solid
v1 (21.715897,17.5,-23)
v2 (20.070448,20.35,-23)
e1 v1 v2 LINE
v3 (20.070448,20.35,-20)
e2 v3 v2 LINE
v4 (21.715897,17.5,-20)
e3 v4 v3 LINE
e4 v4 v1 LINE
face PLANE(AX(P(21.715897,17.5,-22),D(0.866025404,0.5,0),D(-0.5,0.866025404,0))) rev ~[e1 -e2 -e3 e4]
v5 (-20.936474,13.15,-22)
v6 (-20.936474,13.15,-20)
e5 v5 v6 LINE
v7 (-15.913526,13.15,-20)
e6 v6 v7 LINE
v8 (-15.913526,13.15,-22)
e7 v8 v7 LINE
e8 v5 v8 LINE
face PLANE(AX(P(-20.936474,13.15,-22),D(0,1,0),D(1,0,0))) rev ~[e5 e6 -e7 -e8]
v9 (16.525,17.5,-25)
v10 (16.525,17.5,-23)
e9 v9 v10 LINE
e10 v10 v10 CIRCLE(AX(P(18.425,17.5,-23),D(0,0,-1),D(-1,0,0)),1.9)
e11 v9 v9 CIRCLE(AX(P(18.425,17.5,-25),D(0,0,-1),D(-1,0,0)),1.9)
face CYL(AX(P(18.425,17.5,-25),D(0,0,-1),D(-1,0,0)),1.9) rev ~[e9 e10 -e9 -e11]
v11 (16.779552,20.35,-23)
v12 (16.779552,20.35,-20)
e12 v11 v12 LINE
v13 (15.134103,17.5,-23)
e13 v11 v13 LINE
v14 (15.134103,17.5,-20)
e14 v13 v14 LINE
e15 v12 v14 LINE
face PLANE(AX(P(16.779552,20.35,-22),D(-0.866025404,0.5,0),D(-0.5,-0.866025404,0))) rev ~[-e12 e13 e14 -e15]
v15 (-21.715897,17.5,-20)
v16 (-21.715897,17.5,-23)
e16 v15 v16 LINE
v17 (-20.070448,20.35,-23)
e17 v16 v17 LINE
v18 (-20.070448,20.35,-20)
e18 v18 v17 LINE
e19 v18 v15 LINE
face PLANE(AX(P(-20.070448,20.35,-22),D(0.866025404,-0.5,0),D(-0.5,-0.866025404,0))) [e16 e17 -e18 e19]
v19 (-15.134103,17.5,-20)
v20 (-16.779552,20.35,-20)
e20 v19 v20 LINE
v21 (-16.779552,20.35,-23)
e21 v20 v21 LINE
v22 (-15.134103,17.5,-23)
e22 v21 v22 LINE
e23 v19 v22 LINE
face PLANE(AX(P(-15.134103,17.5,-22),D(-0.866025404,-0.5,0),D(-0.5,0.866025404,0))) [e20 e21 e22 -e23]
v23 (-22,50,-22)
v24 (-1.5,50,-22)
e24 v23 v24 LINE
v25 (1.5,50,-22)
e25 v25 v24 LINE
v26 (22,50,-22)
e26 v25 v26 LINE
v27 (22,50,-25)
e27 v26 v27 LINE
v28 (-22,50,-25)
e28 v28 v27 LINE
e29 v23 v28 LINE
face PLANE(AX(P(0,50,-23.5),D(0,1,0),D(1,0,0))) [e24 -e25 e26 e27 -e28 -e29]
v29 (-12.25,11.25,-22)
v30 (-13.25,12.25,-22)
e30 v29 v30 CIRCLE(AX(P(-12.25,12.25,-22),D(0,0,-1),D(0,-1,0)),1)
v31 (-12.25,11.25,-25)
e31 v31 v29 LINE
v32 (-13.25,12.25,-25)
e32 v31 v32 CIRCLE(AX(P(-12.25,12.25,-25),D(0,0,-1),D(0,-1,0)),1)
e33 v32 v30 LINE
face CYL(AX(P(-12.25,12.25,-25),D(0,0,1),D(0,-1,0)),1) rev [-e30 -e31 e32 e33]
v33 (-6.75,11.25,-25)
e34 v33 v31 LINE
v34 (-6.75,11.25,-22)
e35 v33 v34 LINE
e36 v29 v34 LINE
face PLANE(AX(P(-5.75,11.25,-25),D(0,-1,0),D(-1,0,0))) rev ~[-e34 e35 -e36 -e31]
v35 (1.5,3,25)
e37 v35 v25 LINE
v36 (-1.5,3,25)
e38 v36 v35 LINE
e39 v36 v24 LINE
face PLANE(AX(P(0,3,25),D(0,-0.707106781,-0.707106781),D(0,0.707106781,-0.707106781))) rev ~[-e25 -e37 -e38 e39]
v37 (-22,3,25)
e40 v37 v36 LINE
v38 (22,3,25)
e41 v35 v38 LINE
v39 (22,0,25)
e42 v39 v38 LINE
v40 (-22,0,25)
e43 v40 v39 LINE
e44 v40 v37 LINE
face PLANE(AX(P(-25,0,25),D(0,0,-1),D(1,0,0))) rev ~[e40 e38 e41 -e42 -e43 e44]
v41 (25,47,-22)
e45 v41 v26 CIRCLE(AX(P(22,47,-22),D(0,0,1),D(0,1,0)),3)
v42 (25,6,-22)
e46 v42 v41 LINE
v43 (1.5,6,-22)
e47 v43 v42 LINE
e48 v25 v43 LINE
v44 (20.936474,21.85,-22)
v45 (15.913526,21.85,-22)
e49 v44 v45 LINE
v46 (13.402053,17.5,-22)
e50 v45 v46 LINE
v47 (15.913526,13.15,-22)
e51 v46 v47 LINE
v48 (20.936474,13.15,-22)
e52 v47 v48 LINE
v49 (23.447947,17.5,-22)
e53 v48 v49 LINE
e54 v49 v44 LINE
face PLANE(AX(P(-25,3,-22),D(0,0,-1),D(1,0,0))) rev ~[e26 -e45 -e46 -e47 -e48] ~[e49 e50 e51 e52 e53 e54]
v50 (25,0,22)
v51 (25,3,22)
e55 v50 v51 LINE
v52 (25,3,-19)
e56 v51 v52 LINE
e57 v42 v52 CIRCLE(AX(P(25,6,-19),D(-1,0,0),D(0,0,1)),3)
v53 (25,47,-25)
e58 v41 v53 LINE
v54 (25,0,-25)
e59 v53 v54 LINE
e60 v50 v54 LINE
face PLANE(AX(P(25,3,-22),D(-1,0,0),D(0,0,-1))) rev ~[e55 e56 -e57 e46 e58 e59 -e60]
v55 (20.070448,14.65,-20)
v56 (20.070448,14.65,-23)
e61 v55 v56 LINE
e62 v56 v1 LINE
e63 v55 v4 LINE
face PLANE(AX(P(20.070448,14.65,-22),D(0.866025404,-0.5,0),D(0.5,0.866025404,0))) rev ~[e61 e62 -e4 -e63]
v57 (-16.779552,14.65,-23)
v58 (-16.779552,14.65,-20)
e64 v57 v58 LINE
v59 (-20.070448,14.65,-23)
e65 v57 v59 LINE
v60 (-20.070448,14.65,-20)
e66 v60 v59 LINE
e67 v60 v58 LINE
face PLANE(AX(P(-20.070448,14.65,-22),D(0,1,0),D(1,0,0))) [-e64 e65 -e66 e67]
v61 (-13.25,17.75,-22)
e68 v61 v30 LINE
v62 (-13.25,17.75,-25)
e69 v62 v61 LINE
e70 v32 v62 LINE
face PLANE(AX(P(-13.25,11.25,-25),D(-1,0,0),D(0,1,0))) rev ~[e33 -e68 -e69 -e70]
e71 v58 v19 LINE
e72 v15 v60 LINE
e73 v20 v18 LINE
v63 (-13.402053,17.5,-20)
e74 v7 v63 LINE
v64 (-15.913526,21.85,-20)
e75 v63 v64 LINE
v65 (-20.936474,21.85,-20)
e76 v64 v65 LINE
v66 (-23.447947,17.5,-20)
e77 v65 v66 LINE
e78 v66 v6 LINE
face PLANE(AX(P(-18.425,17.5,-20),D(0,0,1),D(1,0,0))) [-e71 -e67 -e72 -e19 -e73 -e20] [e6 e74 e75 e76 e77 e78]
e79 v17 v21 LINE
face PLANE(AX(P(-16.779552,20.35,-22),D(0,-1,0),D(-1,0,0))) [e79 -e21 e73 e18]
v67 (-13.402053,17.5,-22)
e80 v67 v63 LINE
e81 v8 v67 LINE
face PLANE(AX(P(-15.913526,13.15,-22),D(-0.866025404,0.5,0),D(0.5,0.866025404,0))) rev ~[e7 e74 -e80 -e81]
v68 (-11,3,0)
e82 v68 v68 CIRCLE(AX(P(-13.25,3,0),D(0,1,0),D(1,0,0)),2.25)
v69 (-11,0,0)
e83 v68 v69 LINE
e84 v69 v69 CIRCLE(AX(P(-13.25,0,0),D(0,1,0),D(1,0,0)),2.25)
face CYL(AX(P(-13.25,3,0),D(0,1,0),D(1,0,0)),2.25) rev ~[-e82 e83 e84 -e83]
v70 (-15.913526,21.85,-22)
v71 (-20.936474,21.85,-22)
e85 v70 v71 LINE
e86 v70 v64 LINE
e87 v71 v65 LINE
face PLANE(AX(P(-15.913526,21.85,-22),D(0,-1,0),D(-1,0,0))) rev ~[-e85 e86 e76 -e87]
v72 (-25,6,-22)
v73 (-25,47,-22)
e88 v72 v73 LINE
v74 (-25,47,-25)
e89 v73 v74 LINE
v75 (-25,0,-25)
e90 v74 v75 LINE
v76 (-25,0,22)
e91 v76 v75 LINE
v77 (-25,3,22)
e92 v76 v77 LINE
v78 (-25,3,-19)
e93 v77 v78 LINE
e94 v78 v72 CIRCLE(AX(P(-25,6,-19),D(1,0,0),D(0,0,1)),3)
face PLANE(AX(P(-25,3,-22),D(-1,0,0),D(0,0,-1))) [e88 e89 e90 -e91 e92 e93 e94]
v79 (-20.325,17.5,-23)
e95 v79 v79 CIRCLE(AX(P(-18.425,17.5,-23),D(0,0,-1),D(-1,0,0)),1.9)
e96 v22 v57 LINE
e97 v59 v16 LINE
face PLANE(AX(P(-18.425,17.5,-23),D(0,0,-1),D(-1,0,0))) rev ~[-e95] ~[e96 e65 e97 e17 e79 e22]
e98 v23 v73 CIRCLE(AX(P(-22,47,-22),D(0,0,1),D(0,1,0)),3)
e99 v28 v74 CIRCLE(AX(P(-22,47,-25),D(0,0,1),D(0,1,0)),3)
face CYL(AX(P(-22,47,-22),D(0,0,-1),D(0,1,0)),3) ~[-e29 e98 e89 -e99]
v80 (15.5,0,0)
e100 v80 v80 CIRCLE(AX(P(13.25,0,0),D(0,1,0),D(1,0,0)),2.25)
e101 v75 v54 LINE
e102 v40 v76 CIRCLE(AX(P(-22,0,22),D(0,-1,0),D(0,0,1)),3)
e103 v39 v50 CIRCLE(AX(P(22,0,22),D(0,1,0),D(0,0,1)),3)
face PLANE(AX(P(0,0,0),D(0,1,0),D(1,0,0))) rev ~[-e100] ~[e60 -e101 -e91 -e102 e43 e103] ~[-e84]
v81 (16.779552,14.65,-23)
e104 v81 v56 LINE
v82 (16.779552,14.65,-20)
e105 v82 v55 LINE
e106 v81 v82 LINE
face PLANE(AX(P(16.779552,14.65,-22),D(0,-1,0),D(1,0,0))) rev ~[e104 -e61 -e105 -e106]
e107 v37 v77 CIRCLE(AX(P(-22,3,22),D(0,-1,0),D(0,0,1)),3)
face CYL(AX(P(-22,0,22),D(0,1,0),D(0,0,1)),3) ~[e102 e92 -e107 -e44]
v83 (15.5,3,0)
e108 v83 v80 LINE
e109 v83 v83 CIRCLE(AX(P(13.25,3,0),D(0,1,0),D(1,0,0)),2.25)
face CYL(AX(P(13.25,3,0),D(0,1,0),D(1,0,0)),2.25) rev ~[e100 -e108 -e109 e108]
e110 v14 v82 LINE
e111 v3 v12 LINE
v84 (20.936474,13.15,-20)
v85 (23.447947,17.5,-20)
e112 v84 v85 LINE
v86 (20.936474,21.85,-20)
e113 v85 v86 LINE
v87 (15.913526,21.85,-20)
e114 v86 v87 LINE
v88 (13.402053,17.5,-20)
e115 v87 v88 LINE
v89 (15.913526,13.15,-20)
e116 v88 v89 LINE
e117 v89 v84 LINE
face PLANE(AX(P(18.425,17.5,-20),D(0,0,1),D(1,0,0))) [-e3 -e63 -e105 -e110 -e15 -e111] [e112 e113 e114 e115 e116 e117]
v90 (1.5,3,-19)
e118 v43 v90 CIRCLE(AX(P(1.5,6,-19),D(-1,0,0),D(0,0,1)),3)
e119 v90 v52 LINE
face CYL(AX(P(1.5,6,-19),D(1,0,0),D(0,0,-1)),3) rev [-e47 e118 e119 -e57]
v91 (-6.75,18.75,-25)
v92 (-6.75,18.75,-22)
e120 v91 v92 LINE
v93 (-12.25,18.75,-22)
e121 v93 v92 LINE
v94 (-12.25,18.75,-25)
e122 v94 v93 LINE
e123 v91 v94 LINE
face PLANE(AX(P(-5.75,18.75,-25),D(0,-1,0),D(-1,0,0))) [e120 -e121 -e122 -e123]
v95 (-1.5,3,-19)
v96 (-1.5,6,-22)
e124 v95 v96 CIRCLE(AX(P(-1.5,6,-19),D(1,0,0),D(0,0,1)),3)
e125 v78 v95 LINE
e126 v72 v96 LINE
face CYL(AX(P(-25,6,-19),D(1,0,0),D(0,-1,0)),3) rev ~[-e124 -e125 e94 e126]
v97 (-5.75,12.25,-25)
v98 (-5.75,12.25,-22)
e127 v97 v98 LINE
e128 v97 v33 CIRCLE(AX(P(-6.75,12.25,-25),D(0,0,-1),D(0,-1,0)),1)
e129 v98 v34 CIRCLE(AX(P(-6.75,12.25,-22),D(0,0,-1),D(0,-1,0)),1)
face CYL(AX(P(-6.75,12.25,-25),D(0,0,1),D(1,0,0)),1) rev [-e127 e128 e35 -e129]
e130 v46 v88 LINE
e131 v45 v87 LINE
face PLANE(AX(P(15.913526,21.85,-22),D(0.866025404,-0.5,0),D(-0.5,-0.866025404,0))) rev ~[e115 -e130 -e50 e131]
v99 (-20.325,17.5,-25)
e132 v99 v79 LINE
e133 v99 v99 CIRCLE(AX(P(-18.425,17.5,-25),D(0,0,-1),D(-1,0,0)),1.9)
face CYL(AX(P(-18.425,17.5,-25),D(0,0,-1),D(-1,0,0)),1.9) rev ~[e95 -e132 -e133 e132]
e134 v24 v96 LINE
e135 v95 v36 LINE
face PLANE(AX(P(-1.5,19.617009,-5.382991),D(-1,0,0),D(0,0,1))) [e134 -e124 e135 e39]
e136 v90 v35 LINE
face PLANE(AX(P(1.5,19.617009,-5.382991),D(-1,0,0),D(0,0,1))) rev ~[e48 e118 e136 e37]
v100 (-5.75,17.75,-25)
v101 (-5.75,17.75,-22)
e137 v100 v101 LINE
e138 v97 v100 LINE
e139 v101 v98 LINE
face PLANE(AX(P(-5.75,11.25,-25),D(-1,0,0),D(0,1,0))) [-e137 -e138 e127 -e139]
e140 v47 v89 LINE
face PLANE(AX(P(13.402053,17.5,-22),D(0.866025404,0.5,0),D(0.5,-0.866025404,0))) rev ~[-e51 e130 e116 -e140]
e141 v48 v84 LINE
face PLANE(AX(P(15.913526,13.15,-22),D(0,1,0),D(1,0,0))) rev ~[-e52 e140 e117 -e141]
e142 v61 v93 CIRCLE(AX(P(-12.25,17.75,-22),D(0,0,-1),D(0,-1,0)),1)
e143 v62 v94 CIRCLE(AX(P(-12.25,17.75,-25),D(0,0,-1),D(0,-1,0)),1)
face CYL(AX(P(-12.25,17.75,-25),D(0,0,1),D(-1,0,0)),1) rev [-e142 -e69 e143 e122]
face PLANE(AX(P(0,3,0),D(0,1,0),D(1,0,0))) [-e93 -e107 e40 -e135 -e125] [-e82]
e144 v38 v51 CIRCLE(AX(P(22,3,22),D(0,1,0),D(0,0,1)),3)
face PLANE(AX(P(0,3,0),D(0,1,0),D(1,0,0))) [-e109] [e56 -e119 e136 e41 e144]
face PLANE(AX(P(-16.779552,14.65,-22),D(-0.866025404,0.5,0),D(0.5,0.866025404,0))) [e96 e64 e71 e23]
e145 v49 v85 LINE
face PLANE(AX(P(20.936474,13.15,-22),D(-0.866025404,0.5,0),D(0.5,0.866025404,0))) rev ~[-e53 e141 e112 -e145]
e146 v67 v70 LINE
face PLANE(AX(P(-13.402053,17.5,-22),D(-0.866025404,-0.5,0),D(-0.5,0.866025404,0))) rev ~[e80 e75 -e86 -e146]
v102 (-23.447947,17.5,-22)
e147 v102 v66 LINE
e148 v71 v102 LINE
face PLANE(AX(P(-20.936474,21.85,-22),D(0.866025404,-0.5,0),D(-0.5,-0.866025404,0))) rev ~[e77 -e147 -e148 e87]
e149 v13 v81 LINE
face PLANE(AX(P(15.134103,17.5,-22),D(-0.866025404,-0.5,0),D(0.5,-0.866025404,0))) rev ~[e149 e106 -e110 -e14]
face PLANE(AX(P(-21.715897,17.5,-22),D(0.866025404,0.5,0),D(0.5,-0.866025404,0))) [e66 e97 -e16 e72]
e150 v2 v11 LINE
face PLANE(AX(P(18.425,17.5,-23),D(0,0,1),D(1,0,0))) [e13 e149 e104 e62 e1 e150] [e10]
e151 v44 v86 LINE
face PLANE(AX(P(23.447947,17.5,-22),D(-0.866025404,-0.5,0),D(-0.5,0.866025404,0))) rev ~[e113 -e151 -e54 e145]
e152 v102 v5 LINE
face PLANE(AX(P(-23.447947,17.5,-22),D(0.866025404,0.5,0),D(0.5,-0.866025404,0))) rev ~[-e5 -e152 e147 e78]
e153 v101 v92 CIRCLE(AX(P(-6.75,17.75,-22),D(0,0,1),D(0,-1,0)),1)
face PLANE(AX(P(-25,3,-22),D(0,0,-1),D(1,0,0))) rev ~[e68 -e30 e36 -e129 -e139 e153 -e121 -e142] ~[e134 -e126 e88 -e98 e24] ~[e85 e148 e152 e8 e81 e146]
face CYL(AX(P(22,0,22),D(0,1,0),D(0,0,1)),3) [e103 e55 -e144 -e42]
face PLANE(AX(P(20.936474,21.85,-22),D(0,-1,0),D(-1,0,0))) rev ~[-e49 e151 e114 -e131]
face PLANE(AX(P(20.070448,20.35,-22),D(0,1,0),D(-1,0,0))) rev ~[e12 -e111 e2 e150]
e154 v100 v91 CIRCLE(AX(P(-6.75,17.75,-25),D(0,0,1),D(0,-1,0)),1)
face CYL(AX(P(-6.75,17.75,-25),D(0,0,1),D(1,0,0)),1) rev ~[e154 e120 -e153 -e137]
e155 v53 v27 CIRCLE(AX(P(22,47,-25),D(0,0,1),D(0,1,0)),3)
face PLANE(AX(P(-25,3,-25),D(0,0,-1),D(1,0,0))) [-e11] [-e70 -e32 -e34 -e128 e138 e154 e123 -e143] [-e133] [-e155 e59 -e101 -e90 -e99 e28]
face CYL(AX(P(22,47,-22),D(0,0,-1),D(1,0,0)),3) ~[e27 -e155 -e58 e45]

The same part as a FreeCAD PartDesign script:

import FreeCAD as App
import Part
import Sketcher
Q = App.Units.Quantity


def edges_at(feature, points):
    """Names of the edges that pass closest to the given points."""
    edges = feature.Shape.Edges
    near = lambda p: min(range(len(edges)), key=lambda i: edges[i].distToShape(Part.Vertex(*p))[0])
    return sorted({f"Edge{near(p) + 1}" for p in points})

doc = App.newDocument("Part")
body = doc.addObject("PartDesign::Body", "Body")

# Sketch on XZ plane
sketch1 = doc.addObject("Sketcher::SketchObject", "Sketch")
body.addObject(sketch1)
sketch1.AttachmentSupport = (doc.XZ_Plane, [""])
sketch1.MapMode = "FlatFace"
sketch1.addGeometry(Part.LineSegment(App.Vector(-25, -25, 0), App.Vector(-25, 25, 0)), False)
sketch1.addGeometry(Part.LineSegment(App.Vector(-25, 25, 0), App.Vector(25, 25, 0)), False)
sketch1.addGeometry(Part.LineSegment(App.Vector(25, 25, 0), App.Vector(25, -25, 0)), False)
sketch1.addGeometry(Part.LineSegment(App.Vector(25, -25, 0), App.Vector(-25, -25, 0)), False)
sketch1.addConstraint(Sketcher.Constraint("Coincident", 0, 2, 1, 1))
sketch1.addConstraint(Sketcher.Constraint("Coincident", 1, 2, 2, 1))
sketch1.addConstraint(Sketcher.Constraint("Coincident", 2, 2, 3, 1))
sketch1.addConstraint(Sketcher.Constraint("Coincident", 3, 2, 0, 1))
sketch1.addConstraint(Sketcher.Constraint("Vertical", 0))
sketch1.addConstraint(Sketcher.Constraint("Horizontal", 1))
sketch1.addConstraint(Sketcher.Constraint("Vertical", 2))
sketch1.addConstraint(Sketcher.Constraint("Horizontal", 3))
sketch1.addConstraint(Sketcher.Constraint("Symmetric", 0, 2, 2, 2, -1, 1))
sketch1.addConstraint(Sketcher.Constraint("Equal", 3, 0))
sketch1.addConstraint(Sketcher.Constraint("DistanceX", 1, 1, 1, 2, Q("50 mm")))
pad1 = doc.addObject("PartDesign::Pad", "Pad")
body.addObject(pad1)
pad1.Profile = sketch1
pad1.Length = 3
pad1.Reversed = True

# Sketch on XZ plane
sketch2 = doc.addObject("Sketcher::SketchObject", "Sketch001")
body.addObject(sketch2)
sketch2.AttachmentSupport = (doc.XZ_Plane, [""])
sketch2.MapMode = "FlatFace"
sketch2.AttachmentOffset = App.Placement(App.Vector(0, 0, -3), App.Rotation())
sketch2.addGeometry(Part.LineSegment(App.Vector(-25, -25, 0), App.Vector(-25, -22, 0)), False)
sketch2.addGeometry(Part.LineSegment(App.Vector(-25, -22, 0), App.Vector(25, -22, 0)), False)
sketch2.addGeometry(Part.LineSegment(App.Vector(25, -22, 0), App.Vector(25, -25, 0)), False)
sketch2.addGeometry(Part.LineSegment(App.Vector(25, -25, 0), App.Vector(-25, -25, 0)), False)
sketch2.addConstraint(Sketcher.Constraint("Coincident", 0, 2, 1, 1))
sketch2.addConstraint(Sketcher.Constraint("Coincident", 1, 2, 2, 1))
sketch2.addConstraint(Sketcher.Constraint("Coincident", 2, 2, 3, 1))
sketch2.addConstraint(Sketcher.Constraint("Coincident", 3, 2, 0, 1))
sketch2.addConstraint(Sketcher.Constraint("Vertical", 0))
sketch2.addConstraint(Sketcher.Constraint("Horizontal", 1))
sketch2.addConstraint(Sketcher.Constraint("Vertical", 2))
sketch2.addConstraint(Sketcher.Constraint("Horizontal", 3))
sketch2.addConstraint(Sketcher.Constraint("DistanceX", 1, 1, 1, 2, Q("50 mm")))
sketch2.addConstraint(Sketcher.Constraint("DistanceY", 0, 1, 0, 2, Q("3 mm")))
sketch2.addConstraint(Sketcher.Constraint("DistanceX", 0, 2, -1, 1, Q("25 mm")))
sketch2.addConstraint(Sketcher.Constraint("DistanceY", 0, 2, -1, 1, Q("22 mm")))
pad2 = doc.addObject("PartDesign::Pad", "Pad001")
body.addObject(pad2)
pad2.Profile = sketch2
pad2.Length = 47
pad2.Reversed = True

# Sketch on YZ plane
sketch3 = doc.addObject("Sketcher::SketchObject", "Sketch002")
body.addObject(sketch3)
sketch3.AttachmentSupport = (doc.YZ_Plane, [""])
sketch3.MapMode = "FlatFace"
sketch3.addGeometry(Part.LineSegment(App.Vector(50, -22, 0), App.Vector(3, 25, 0)), False)
sketch3.addGeometry(Part.LineSegment(App.Vector(3, 25, 0), App.Vector(3, -22, 0)), False)
sketch3.addGeometry(Part.LineSegment(App.Vector(3, -22, 0), App.Vector(50, -22, 0)), False)
sketch3.addConstraint(Sketcher.Constraint("Coincident", 0, 2, 1, 1))
sketch3.addConstraint(Sketcher.Constraint("Coincident", 1, 2, 2, 1))
sketch3.addConstraint(Sketcher.Constraint("Coincident", 2, 2, 0, 1))
sketch3.addConstraint(Sketcher.Constraint("Vertical", 1))
sketch3.addConstraint(Sketcher.Constraint("Horizontal", 2))
sketch3.addConstraint(Sketcher.Constraint("Equal", 2, 1))
sketch3.addConstraint(Sketcher.Constraint("DistanceX", 2, 1, 2, 2, Q("47 mm")))
sketch3.addConstraint(Sketcher.Constraint("DistanceX", -1, 1, 0, 2, Q("3 mm")))
sketch3.addConstraint(Sketcher.Constraint("DistanceY", -1, 1, 0, 2, Q("25 mm")))
pad3 = doc.addObject("PartDesign::Pad", "Pad002")
body.addObject(pad3)
pad3.Profile = sketch3
pad3.Length = 3
pad3.Midplane = True

# Sketch on XY plane
sketch4 = doc.addObject("Sketcher::SketchObject", "Sketch003")
body.addObject(sketch4)
sketch4.AttachmentSupport = (doc.XY_Plane, [""])
sketch4.MapMode = "FlatFace"
sketch4.AttachmentOffset = App.Placement(App.Vector(0, 0, -25), App.Rotation())
sketch4.addGeometry(Part.Circle(App.Vector(18.4, 17.5, 0), App.Vector(0, 0, 1), 1.9), False)
sketch4.addConstraint(Sketcher.Constraint("Diameter", 0, Q("3.8 mm")))
sketch4.addConstraint(Sketcher.Constraint("DistanceY", -1, 1, 0, 3, Q("17.5 mm")))
sketch4.addConstraint(Sketcher.Constraint("DistanceX", -1, 1, 0, 3, Q("18.425 mm")))
pocket1 = doc.addObject("PartDesign::Pocket", "Pocket")
body.addObject(pocket1)
pocket1.Profile = sketch4
pocket1.Type = "UpToFirst"
pocket1.Reversed = True

# Sketch on XY plane
sketch5 = doc.addObject("Sketcher::SketchObject", "Sketch004")
body.addObject(sketch5)
sketch5.AttachmentSupport = (doc.XY_Plane, [""])
sketch5.MapMode = "FlatFace"
sketch5.AttachmentOffset = App.Placement(App.Vector(0, 0, -25), App.Rotation())
sketch5.addGeometry(Part.Circle(App.Vector(-18.4, 17.5, 0), App.Vector(0, 0, 1), 1.9), False)
sketch5.addConstraint(Sketcher.Constraint("Diameter", 0, Q("3.8 mm")))
sketch5.addConstraint(Sketcher.Constraint("DistanceY", -1, 1, 0, 3, Q("17.5 mm")))
sketch5.addConstraint(Sketcher.Constraint("DistanceX", 0, 3, -1, 1, Q("18.425 mm")))
pocket2 = doc.addObject("PartDesign::Pocket", "Pocket001")
body.addObject(pocket2)
pocket2.Profile = sketch5
pocket2.Type = "UpToFirst"
pocket2.Reversed = True

# Sketch on XY plane
sketch6 = doc.addObject("Sketcher::SketchObject", "Sketch005")
body.addObject(sketch6)
sketch6.AttachmentSupport = (doc.XY_Plane, [""])
sketch6.MapMode = "FlatFace"
sketch6.AttachmentOffset = App.Placement(App.Vector(0, 0, -25), App.Rotation())
sketch6.addGeometry(Part.LineSegment(App.Vector(-6, 19, 0), App.Vector(-6, 11, 0)), False)
sketch6.addGeometry(Part.LineSegment(App.Vector(-6, 11, 0), App.Vector(-13, 11, 0)), False)
sketch6.addGeometry(Part.LineSegment(App.Vector(-13, 11, 0), App.Vector(-13, 19, 0)), False)
sketch6.addGeometry(Part.LineSegment(App.Vector(-13, 19, 0), App.Vector(-6, 19, 0)), False)
sketch6.addConstraint(Sketcher.Constraint("Coincident", 0, 2, 1, 1))
sketch6.addConstraint(Sketcher.Constraint("Coincident", 1, 2, 2, 1))
sketch6.addConstraint(Sketcher.Constraint("Coincident", 2, 2, 3, 1))
sketch6.addConstraint(Sketcher.Constraint("Coincident", 3, 2, 0, 1))
sketch6.addConstraint(Sketcher.Constraint("Vertical", 0))
sketch6.addConstraint(Sketcher.Constraint("Horizontal", 1))
sketch6.addConstraint(Sketcher.Constraint("Vertical", 2))
sketch6.addConstraint(Sketcher.Constraint("Horizontal", 3))
sketch6.addConstraint(Sketcher.Constraint("Equal", 3, 0))
sketch6.addConstraint(Sketcher.Constraint("DistanceX", 1, 2, 1, 1, Q("7.5 mm")))
sketch6.addConstraint(Sketcher.Constraint("DistanceX", 0, 2, -1, 1, Q("5.75 mm")))
sketch6.addConstraint(Sketcher.Constraint("DistanceY", -1, 1, 0, 2, Q("11.25 mm")))
pocket3 = doc.addObject("PartDesign::Pocket", "Pocket002")
body.addObject(pocket3)
pocket3.Profile = sketch6
pocket3.Type = "UpToFirst"
pocket3.Reversed = True
doc.recompute()

fillet = doc.addObject("PartDesign::Fillet", "Fillet")
body.addObject(fillet)
fillet.Base = (pocket3, edges_at(pocket3, [
    (-13.25, 18.75, -23.5),
    (-13.25, 11.25, -23.5),
    (-5.75, 11.25, -23.5),
    (-5.75, 18.75, -23.5),
]))
fillet.Radius = 1

# Sketch on XY plane
sketch7 = doc.addObject("Sketcher::SketchObject", "Sketch006")
body.addObject(sketch7)
sketch7.AttachmentSupport = (doc.XY_Plane, [""])
sketch7.MapMode = "FlatFace"
sketch7.AttachmentOffset = App.Placement(App.Vector(0, 0, -22), App.Rotation())
sketch7.addGeometry(Part.LineSegment(App.Vector(16.8, 14.7, 0), App.Vector(20.1, 14.7, 0)), False)
sketch7.addGeometry(Part.LineSegment(App.Vector(20.1, 14.7, 0), App.Vector(21.7, 17.5, 0)), False)
sketch7.addGeometry(Part.LineSegment(App.Vector(21.7, 17.5, 0), App.Vector(20.1, 20.4, 0)), False)
sketch7.addGeometry(Part.LineSegment(App.Vector(20.1, 20.4, 0), App.Vector(16.8, 20.4, 0)), False)
sketch7.addGeometry(Part.LineSegment(App.Vector(16.8, 20.4, 0), App.Vector(15.1, 17.5, 0)), False)
sketch7.addGeometry(Part.LineSegment(App.Vector(15.1, 17.5, 0), App.Vector(16.8, 14.7, 0)), False)
sketch7.addGeometry(Part.LineSegment(App.Vector(-21.7, 17.5, 0), App.Vector(-20.1, 14.7, 0)), False)
sketch7.addGeometry(Part.LineSegment(App.Vector(-20.1, 14.7, 0), App.Vector(-16.8, 14.7, 0)), False)
sketch7.addGeometry(Part.LineSegment(App.Vector(-16.8, 14.7, 0), App.Vector(-15.1, 17.5, 0)), False)
sketch7.addGeometry(Part.LineSegment(App.Vector(-15.1, 17.5, 0), App.Vector(-16.8, 20.4, 0)), False)
sketch7.addGeometry(Part.LineSegment(App.Vector(-16.8, 20.4, 0), App.Vector(-20.1, 20.4, 0)), False)
sketch7.addGeometry(Part.LineSegment(App.Vector(-20.1, 20.4, 0), App.Vector(-21.7, 17.5, 0)), False)
sketch7.addConstraint(Sketcher.Constraint("Coincident", 0, 2, 1, 1))
sketch7.addConstraint(Sketcher.Constraint("Coincident", 1, 2, 2, 1))
sketch7.addConstraint(Sketcher.Constraint("Coincident", 2, 2, 3, 1))
sketch7.addConstraint(Sketcher.Constraint("Coincident", 3, 2, 4, 1))
sketch7.addConstraint(Sketcher.Constraint("Coincident", 4, 2, 5, 1))
sketch7.addConstraint(Sketcher.Constraint("Coincident", 5, 2, 0, 1))
sketch7.addConstraint(Sketcher.Constraint("Coincident", 6, 2, 7, 1))
sketch7.addConstraint(Sketcher.Constraint("Coincident", 7, 2, 8, 1))
sketch7.addConstraint(Sketcher.Constraint("Coincident", 8, 2, 9, 1))
sketch7.addConstraint(Sketcher.Constraint("Coincident", 9, 2, 10, 1))
sketch7.addConstraint(Sketcher.Constraint("Coincident", 10, 2, 11, 1))
sketch7.addConstraint(Sketcher.Constraint("Coincident", 11, 2, 6, 1))
sketch7.addConstraint(Sketcher.Constraint("Horizontal", 0))
sketch7.addConstraint(Sketcher.Constraint("Horizontal", 3))
sketch7.addConstraint(Sketcher.Constraint("Horizontal", 7))
sketch7.addConstraint(Sketcher.Constraint("Horizontal", 10))
sketch7.addConstraint(Sketcher.Constraint("Symmetric", 0, 2, 6, 2, -2))
sketch7.addConstraint(Sketcher.Constraint("Symmetric", 4, 2, 8, 2, -2))
sketch7.addConstraint(Sketcher.Constraint("Symmetric", 3, 2, 9, 2, -2))
sketch7.addConstraint(Sketcher.Constraint("Symmetric", 1, 2, 11, 2, -2))
sketch7.addConstraint(Sketcher.Constraint("Parallel", 1, 4))
sketch7.addConstraint(Sketcher.Constraint("Parallel", 2, 5))
sketch7.addConstraint(Sketcher.Constraint("Parallel", 5, 6))
sketch7.addConstraint(Sketcher.Constraint("Parallel", 4, 8))
sketch7.addConstraint(Sketcher.Constraint("Parallel", 8, 11))
sketch7.addConstraint(Sketcher.Constraint("Horizontal", 1, 2, 4, 2))
sketch7.addConstraint(Sketcher.Constraint("Vertical", 0, 2, 2, 2))
sketch7.addConstraint(Sketcher.Constraint("Angle", 1, Q("60 deg")))
sketch7.addConstraint(Sketcher.Constraint("DistanceY", -1, 1, 1, 2, Q("17.5 mm")))
sketch7.addConstraint(Sketcher.Constraint("DistanceY", 0, 2, 2, 2, Q("5.7 mm")))
sketch7.addConstraint(Sketcher.Constraint("DistanceX", 6, 2, 5, 2, Q("36.85 mm")))
sketch7.addConstraint(Sketcher.Constraint("DistanceX", 0, 1, 0, 2, Q("3.290897 mm")))
pocket4 = doc.addObject("PartDesign::Pocket", "Pocket003")
body.addObject(pocket4)
pocket4.Profile = sketch7
pocket4.Length = 1

# Sketch on XY plane
sketch8 = doc.addObject("Sketcher::SketchObject", "Sketch007")
body.addObject(sketch8)
sketch8.AttachmentSupport = (doc.XY_Plane, [""])
sketch8.MapMode = "FlatFace"
sketch8.AttachmentOffset = App.Placement(App.Vector(0, 0, -22), App.Rotation())
sketch8.addGeometry(Part.LineSegment(App.Vector(-15.9, 13.2, 0), App.Vector(-13.4, 17.5, 0)), False)
sketch8.addGeometry(Part.LineSegment(App.Vector(-13.4, 17.5, 0), App.Vector(-15.9, 21.9, 0)), False)
sketch8.addGeometry(Part.LineSegment(App.Vector(-15.9, 21.9, 0), App.Vector(-20.9, 21.9, 0)), False)
sketch8.addGeometry(Part.LineSegment(App.Vector(-20.9, 21.9, 0), App.Vector(-23.4, 17.5, 0)), False)
sketch8.addGeometry(Part.LineSegment(App.Vector(-23.4, 17.5, 0), App.Vector(-20.9, 13.2, 0)), False)
sketch8.addGeometry(Part.LineSegment(App.Vector(-20.9, 13.2, 0), App.Vector(-15.9, 13.2, 0)), False)
sketch8.addGeometry(Part.LineSegment(App.Vector(-15.1, 17.5, 0), App.Vector(-16.8, 14.7, 0)), False)
sketch8.addGeometry(Part.LineSegment(App.Vector(-16.8, 14.7, 0), App.Vector(-20.1, 14.7, 0)), False)
sketch8.addGeometry(Part.LineSegment(App.Vector(-20.1, 14.7, 0), App.Vector(-21.7, 17.5, 0)), False)
sketch8.addGeometry(Part.LineSegment(App.Vector(-21.7, 17.5, 0), App.Vector(-20.1, 20.4, 0)), False)
sketch8.addGeometry(Part.LineSegment(App.Vector(-20.1, 20.4, 0), App.Vector(-16.8, 20.4, 0)), False)
sketch8.addGeometry(Part.LineSegment(App.Vector(-16.8, 20.4, 0), App.Vector(-15.1, 17.5, 0)), False)
sketch8.addGeometry(Part.LineSegment(App.Vector(13.4, 17.5, 0), App.Vector(15.9, 13.2, 0)), False)
sketch8.addGeometry(Part.LineSegment(App.Vector(15.9, 13.2, 0), App.Vector(20.9, 13.2, 0)), False)
sketch8.addGeometry(Part.LineSegment(App.Vector(20.9, 13.2, 0), App.Vector(23.4, 17.5, 0)), False)
sketch8.addGeometry(Part.LineSegment(App.Vector(23.4, 17.5, 0), App.Vector(20.9, 21.9, 0)), False)
sketch8.addGeometry(Part.LineSegment(App.Vector(20.9, 21.9, 0), App.Vector(15.9, 21.9, 0)), False)
sketch8.addGeometry(Part.LineSegment(App.Vector(15.9, 21.9, 0), App.Vector(13.4, 17.5, 0)), False)
sketch8.addGeometry(Part.LineSegment(App.Vector(20.1, 14.7, 0), App.Vector(16.8, 14.7, 0)), False)
sketch8.addGeometry(Part.LineSegment(App.Vector(16.8, 14.7, 0), App.Vector(15.1, 17.5, 0)), False)
sketch8.addGeometry(Part.LineSegment(App.Vector(15.1, 17.5, 0), App.Vector(16.8, 20.4, 0)), False)
sketch8.addGeometry(Part.LineSegment(App.Vector(16.8, 20.4, 0), App.Vector(20.1, 20.4, 0)), False)
sketch8.addGeometry(Part.LineSegment(App.Vector(20.1, 20.4, 0), App.Vector(21.7, 17.5, 0)), False)
sketch8.addGeometry(Part.LineSegment(App.Vector(21.7, 17.5, 0), App.Vector(20.1, 14.7, 0)), False)
sketch8.addConstraint(Sketcher.Constraint("Coincident", 0, 2, 1, 1))
sketch8.addConstraint(Sketcher.Constraint("Coincident", 1, 2, 2, 1))
sketch8.addConstraint(Sketcher.Constraint("Coincident", 2, 2, 3, 1))
sketch8.addConstraint(Sketcher.Constraint("Coincident", 3, 2, 4, 1))
sketch8.addConstraint(Sketcher.Constraint("Coincident", 4, 2, 5, 1))
sketch8.addConstraint(Sketcher.Constraint("Coincident", 5, 2, 0, 1))
sketch8.addConstraint(Sketcher.Constraint("Coincident", 6, 2, 7, 1))
sketch8.addConstraint(Sketcher.Constraint("Coincident", 7, 2, 8, 1))
sketch8.addConstraint(Sketcher.Constraint("Coincident", 8, 2, 9, 1))
sketch8.addConstraint(Sketcher.Constraint("Coincident", 9, 2, 10, 1))
sketch8.addConstraint(Sketcher.Constraint("Coincident", 10, 2, 11, 1))
sketch8.addConstraint(Sketcher.Constraint("Coincident", 11, 2, 6, 1))
sketch8.addConstraint(Sketcher.Constraint("Coincident", 12, 2, 13, 1))
sketch8.addConstraint(Sketcher.Constraint("Coincident", 13, 2, 14, 1))
sketch8.addConstraint(Sketcher.Constraint("Coincident", 14, 2, 15, 1))
sketch8.addConstraint(Sketcher.Constraint("Coincident", 15, 2, 16, 1))
sketch8.addConstraint(Sketcher.Constraint("Coincident", 16, 2, 17, 1))
sketch8.addConstraint(Sketcher.Constraint("Coincident", 17, 2, 12, 1))
sketch8.addConstraint(Sketcher.Constraint("Coincident", 18, 2, 19, 1))
sketch8.addConstraint(Sketcher.Constraint("Coincident", 19, 2, 20, 1))
sketch8.addConstraint(Sketcher.Constraint("Coincident", 20, 2, 21, 1))
sketch8.addConstraint(Sketcher.Constraint("Coincident", 21, 2, 22, 1))
sketch8.addConstraint(Sketcher.Constraint("Coincident", 22, 2, 23, 1))
sketch8.addConstraint(Sketcher.Constraint("Coincident", 23, 2, 18, 1))
sketch8.addConstraint(Sketcher.Constraint("Horizontal", 2))
sketch8.addConstraint(Sketcher.Constraint("Horizontal", 5))
sketch8.addConstraint(Sketcher.Constraint("Horizontal", 7))
sketch8.addConstraint(Sketcher.Constraint("Horizontal", 10))
sketch8.addConstraint(Sketcher.Constraint("Horizontal", 13))
sketch8.addConstraint(Sketcher.Constraint("Horizontal", 16))
sketch8.addConstraint(Sketcher.Constraint("Horizontal", 18))
sketch8.addConstraint(Sketcher.Constraint("Horizontal", 21))
sketch8.addConstraint(Sketcher.Constraint("Symmetric", 5, 2, 12, 2, -2))
sketch8.addConstraint(Sketcher.Constraint("Symmetric", 3, 2, 14, 2, -2))
sketch8.addConstraint(Sketcher.Constraint("Symmetric", 2, 2, 15, 2, -2))
sketch8.addConstraint(Sketcher.Constraint("Symmetric", 0, 2, 17, 2, -2))
sketch8.addConstraint(Sketcher.Constraint("Symmetric", 6, 2, 18, 2, -2))
sketch8.addConstraint(Sketcher.Constraint("Symmetric", 11, 2, 19, 2, -2))
sketch8.addConstraint(Sketcher.Constraint("Symmetric", 10, 2, 20, 2, -2))
sketch8.addConstraint(Sketcher.Constraint("Symmetric", 8, 2, 22, 2, -2))
sketch8.addConstraint(Sketcher.Constraint("Parallel", 0, 3))
sketch8.addConstraint(Sketcher.Constraint("Parallel", 1, 4))
sketch8.addConstraint(Sketcher.Constraint("Parallel", 3, 6))
sketch8.addConstraint(Sketcher.Constraint("Parallel", 4, 8))
sketch8.addConstraint(Sketcher.Constraint("Parallel", 6, 9))
sketch8.addConstraint(Sketcher.Constraint("Parallel", 8, 11))
sketch8.addConstraint(Sketcher.Constraint("Parallel", 11, 12))
sketch8.addConstraint(Sketcher.Constraint("Parallel", 9, 14))
sketch8.addConstraint(Sketcher.Constraint("Parallel", 14, 17))
sketch8.addConstraint(Sketcher.Constraint("Parallel", 19, 22))
sketch8.addConstraint(Sketcher.Constraint("Parallel", 20, 23))
sketch8.addConstraint(Sketcher.Constraint("Horizontal", 0, 2, 3, 2))
sketch8.addConstraint(Sketcher.Constraint("Horizontal", 3, 2, 8, 2))
sketch8.addConstraint(Sketcher.Constraint("Horizontal", 8, 2, 11, 2))
sketch8.addConstraint(Sketcher.Constraint("Vertical", 2, 2, 4, 2))
sketch8.addConstraint(Sketcher.Constraint("Vertical", 7, 2, 9, 2))
sketch8.addConstraint(Sketcher.Constraint("Angle", 0, Q("60 deg")))
sketch8.addConstraint(Sketcher.Constraint("DistanceY", -1, 1, 0, 2, Q("17.5 mm")))
sketch8.addConstraint(Sketcher.Constraint("DistanceY", 4, 2, 2, 2, Q("8.7 mm")))
sketch8.addConstraint(Sketcher.Constraint("DistanceY", 5, 2, 6, 2, Q("1.5 mm")))
sketch8.addConstraint(Sketcher.Constraint("DistanceX", 5, 2, 13, 2, Q("36.85 mm")))
sketch8.addConstraint(Sketcher.Constraint("DistanceX", 6, 2, 0, 2, Q("3.377499 mm")))
sketch8.addConstraint(Sketcher.Constraint("DistanceX", 3, 2, 7, 2, Q("3.377499 mm")))
sketch8.addConstraint(Sketcher.Constraint("DistanceX", 2, 2, 2, 1, Q("5.022947 mm")))
pad4 = doc.addObject("PartDesign::Pad", "Pad003")
body.addObject(pad4)
pad4.Profile = sketch8
pad4.Length = 2
doc.recompute()

fillet2 = doc.addObject("PartDesign::Fillet", "Fillet001")
body.addObject(fillet2)
fillet2.Base = (pad4, edges_at(pad4, [
    (-13.25, 3, -22),
    (-25, 50, -23.5),
    (25, 50, -23.5),
    (13.25, 3, -22),
    (25, 1.5, 25),
    (-25, 1.5, 25),
]))
fillet2.Radius = 3

# Sketch on XZ plane
sketch9 = doc.addObject("Sketcher::SketchObject", "Sketch008")
body.addObject(sketch9)
sketch9.AttachmentSupport = (doc.XZ_Plane, [""])
sketch9.MapMode = "FlatFace"
sketch9.AttachmentOffset = App.Placement(App.Vector(0, 0, -3), App.Rotation())
sketch9.addGeometry(Part.Circle(App.Vector(-13.2, 0, 0), App.Vector(0, 0, 1), 2.2), False)
sketch9.addConstraint(Sketcher.Constraint("PointOnObject", 0, 3, -1))
sketch9.addConstraint(Sketcher.Constraint("Diameter", 0, Q("4.5 mm")))
sketch9.addConstraint(Sketcher.Constraint("DistanceX", 0, 3, -1, 1, Q("13.25 mm")))
pocket5 = doc.addObject("PartDesign::Pocket", "Pocket004")
body.addObject(pocket5)
pocket5.Profile = sketch9
pocket5.Type = "UpToFirst"
pocket5.Reversed = True

# Sketch on XZ plane
sketch10 = doc.addObject("Sketcher::SketchObject", "Sketch009")
body.addObject(sketch10)
sketch10.AttachmentSupport = (doc.XZ_Plane, [""])
sketch10.MapMode = "FlatFace"
sketch10.AttachmentOffset = App.Placement(App.Vector(0, 0, -3), App.Rotation())
sketch10.addGeometry(Part.Circle(App.Vector(13.2, 0, 0), App.Vector(0, 0, 1), 2.2), False)
sketch10.addConstraint(Sketcher.Constraint("PointOnObject", 0, 3, -1))
sketch10.addConstraint(Sketcher.Constraint("Diameter", 0, Q("4.5 mm")))
sketch10.addConstraint(Sketcher.Constraint("DistanceX", -1, 1, 0, 3, Q("13.25 mm")))
pocket6 = doc.addObject("PartDesign::Pocket", "Pocket005")
body.addObject(pocket6)
pocket6.Profile = sketch10
pocket6.Type = "UpToFirst"
pocket6.Reversed = True

doc.recompute()
